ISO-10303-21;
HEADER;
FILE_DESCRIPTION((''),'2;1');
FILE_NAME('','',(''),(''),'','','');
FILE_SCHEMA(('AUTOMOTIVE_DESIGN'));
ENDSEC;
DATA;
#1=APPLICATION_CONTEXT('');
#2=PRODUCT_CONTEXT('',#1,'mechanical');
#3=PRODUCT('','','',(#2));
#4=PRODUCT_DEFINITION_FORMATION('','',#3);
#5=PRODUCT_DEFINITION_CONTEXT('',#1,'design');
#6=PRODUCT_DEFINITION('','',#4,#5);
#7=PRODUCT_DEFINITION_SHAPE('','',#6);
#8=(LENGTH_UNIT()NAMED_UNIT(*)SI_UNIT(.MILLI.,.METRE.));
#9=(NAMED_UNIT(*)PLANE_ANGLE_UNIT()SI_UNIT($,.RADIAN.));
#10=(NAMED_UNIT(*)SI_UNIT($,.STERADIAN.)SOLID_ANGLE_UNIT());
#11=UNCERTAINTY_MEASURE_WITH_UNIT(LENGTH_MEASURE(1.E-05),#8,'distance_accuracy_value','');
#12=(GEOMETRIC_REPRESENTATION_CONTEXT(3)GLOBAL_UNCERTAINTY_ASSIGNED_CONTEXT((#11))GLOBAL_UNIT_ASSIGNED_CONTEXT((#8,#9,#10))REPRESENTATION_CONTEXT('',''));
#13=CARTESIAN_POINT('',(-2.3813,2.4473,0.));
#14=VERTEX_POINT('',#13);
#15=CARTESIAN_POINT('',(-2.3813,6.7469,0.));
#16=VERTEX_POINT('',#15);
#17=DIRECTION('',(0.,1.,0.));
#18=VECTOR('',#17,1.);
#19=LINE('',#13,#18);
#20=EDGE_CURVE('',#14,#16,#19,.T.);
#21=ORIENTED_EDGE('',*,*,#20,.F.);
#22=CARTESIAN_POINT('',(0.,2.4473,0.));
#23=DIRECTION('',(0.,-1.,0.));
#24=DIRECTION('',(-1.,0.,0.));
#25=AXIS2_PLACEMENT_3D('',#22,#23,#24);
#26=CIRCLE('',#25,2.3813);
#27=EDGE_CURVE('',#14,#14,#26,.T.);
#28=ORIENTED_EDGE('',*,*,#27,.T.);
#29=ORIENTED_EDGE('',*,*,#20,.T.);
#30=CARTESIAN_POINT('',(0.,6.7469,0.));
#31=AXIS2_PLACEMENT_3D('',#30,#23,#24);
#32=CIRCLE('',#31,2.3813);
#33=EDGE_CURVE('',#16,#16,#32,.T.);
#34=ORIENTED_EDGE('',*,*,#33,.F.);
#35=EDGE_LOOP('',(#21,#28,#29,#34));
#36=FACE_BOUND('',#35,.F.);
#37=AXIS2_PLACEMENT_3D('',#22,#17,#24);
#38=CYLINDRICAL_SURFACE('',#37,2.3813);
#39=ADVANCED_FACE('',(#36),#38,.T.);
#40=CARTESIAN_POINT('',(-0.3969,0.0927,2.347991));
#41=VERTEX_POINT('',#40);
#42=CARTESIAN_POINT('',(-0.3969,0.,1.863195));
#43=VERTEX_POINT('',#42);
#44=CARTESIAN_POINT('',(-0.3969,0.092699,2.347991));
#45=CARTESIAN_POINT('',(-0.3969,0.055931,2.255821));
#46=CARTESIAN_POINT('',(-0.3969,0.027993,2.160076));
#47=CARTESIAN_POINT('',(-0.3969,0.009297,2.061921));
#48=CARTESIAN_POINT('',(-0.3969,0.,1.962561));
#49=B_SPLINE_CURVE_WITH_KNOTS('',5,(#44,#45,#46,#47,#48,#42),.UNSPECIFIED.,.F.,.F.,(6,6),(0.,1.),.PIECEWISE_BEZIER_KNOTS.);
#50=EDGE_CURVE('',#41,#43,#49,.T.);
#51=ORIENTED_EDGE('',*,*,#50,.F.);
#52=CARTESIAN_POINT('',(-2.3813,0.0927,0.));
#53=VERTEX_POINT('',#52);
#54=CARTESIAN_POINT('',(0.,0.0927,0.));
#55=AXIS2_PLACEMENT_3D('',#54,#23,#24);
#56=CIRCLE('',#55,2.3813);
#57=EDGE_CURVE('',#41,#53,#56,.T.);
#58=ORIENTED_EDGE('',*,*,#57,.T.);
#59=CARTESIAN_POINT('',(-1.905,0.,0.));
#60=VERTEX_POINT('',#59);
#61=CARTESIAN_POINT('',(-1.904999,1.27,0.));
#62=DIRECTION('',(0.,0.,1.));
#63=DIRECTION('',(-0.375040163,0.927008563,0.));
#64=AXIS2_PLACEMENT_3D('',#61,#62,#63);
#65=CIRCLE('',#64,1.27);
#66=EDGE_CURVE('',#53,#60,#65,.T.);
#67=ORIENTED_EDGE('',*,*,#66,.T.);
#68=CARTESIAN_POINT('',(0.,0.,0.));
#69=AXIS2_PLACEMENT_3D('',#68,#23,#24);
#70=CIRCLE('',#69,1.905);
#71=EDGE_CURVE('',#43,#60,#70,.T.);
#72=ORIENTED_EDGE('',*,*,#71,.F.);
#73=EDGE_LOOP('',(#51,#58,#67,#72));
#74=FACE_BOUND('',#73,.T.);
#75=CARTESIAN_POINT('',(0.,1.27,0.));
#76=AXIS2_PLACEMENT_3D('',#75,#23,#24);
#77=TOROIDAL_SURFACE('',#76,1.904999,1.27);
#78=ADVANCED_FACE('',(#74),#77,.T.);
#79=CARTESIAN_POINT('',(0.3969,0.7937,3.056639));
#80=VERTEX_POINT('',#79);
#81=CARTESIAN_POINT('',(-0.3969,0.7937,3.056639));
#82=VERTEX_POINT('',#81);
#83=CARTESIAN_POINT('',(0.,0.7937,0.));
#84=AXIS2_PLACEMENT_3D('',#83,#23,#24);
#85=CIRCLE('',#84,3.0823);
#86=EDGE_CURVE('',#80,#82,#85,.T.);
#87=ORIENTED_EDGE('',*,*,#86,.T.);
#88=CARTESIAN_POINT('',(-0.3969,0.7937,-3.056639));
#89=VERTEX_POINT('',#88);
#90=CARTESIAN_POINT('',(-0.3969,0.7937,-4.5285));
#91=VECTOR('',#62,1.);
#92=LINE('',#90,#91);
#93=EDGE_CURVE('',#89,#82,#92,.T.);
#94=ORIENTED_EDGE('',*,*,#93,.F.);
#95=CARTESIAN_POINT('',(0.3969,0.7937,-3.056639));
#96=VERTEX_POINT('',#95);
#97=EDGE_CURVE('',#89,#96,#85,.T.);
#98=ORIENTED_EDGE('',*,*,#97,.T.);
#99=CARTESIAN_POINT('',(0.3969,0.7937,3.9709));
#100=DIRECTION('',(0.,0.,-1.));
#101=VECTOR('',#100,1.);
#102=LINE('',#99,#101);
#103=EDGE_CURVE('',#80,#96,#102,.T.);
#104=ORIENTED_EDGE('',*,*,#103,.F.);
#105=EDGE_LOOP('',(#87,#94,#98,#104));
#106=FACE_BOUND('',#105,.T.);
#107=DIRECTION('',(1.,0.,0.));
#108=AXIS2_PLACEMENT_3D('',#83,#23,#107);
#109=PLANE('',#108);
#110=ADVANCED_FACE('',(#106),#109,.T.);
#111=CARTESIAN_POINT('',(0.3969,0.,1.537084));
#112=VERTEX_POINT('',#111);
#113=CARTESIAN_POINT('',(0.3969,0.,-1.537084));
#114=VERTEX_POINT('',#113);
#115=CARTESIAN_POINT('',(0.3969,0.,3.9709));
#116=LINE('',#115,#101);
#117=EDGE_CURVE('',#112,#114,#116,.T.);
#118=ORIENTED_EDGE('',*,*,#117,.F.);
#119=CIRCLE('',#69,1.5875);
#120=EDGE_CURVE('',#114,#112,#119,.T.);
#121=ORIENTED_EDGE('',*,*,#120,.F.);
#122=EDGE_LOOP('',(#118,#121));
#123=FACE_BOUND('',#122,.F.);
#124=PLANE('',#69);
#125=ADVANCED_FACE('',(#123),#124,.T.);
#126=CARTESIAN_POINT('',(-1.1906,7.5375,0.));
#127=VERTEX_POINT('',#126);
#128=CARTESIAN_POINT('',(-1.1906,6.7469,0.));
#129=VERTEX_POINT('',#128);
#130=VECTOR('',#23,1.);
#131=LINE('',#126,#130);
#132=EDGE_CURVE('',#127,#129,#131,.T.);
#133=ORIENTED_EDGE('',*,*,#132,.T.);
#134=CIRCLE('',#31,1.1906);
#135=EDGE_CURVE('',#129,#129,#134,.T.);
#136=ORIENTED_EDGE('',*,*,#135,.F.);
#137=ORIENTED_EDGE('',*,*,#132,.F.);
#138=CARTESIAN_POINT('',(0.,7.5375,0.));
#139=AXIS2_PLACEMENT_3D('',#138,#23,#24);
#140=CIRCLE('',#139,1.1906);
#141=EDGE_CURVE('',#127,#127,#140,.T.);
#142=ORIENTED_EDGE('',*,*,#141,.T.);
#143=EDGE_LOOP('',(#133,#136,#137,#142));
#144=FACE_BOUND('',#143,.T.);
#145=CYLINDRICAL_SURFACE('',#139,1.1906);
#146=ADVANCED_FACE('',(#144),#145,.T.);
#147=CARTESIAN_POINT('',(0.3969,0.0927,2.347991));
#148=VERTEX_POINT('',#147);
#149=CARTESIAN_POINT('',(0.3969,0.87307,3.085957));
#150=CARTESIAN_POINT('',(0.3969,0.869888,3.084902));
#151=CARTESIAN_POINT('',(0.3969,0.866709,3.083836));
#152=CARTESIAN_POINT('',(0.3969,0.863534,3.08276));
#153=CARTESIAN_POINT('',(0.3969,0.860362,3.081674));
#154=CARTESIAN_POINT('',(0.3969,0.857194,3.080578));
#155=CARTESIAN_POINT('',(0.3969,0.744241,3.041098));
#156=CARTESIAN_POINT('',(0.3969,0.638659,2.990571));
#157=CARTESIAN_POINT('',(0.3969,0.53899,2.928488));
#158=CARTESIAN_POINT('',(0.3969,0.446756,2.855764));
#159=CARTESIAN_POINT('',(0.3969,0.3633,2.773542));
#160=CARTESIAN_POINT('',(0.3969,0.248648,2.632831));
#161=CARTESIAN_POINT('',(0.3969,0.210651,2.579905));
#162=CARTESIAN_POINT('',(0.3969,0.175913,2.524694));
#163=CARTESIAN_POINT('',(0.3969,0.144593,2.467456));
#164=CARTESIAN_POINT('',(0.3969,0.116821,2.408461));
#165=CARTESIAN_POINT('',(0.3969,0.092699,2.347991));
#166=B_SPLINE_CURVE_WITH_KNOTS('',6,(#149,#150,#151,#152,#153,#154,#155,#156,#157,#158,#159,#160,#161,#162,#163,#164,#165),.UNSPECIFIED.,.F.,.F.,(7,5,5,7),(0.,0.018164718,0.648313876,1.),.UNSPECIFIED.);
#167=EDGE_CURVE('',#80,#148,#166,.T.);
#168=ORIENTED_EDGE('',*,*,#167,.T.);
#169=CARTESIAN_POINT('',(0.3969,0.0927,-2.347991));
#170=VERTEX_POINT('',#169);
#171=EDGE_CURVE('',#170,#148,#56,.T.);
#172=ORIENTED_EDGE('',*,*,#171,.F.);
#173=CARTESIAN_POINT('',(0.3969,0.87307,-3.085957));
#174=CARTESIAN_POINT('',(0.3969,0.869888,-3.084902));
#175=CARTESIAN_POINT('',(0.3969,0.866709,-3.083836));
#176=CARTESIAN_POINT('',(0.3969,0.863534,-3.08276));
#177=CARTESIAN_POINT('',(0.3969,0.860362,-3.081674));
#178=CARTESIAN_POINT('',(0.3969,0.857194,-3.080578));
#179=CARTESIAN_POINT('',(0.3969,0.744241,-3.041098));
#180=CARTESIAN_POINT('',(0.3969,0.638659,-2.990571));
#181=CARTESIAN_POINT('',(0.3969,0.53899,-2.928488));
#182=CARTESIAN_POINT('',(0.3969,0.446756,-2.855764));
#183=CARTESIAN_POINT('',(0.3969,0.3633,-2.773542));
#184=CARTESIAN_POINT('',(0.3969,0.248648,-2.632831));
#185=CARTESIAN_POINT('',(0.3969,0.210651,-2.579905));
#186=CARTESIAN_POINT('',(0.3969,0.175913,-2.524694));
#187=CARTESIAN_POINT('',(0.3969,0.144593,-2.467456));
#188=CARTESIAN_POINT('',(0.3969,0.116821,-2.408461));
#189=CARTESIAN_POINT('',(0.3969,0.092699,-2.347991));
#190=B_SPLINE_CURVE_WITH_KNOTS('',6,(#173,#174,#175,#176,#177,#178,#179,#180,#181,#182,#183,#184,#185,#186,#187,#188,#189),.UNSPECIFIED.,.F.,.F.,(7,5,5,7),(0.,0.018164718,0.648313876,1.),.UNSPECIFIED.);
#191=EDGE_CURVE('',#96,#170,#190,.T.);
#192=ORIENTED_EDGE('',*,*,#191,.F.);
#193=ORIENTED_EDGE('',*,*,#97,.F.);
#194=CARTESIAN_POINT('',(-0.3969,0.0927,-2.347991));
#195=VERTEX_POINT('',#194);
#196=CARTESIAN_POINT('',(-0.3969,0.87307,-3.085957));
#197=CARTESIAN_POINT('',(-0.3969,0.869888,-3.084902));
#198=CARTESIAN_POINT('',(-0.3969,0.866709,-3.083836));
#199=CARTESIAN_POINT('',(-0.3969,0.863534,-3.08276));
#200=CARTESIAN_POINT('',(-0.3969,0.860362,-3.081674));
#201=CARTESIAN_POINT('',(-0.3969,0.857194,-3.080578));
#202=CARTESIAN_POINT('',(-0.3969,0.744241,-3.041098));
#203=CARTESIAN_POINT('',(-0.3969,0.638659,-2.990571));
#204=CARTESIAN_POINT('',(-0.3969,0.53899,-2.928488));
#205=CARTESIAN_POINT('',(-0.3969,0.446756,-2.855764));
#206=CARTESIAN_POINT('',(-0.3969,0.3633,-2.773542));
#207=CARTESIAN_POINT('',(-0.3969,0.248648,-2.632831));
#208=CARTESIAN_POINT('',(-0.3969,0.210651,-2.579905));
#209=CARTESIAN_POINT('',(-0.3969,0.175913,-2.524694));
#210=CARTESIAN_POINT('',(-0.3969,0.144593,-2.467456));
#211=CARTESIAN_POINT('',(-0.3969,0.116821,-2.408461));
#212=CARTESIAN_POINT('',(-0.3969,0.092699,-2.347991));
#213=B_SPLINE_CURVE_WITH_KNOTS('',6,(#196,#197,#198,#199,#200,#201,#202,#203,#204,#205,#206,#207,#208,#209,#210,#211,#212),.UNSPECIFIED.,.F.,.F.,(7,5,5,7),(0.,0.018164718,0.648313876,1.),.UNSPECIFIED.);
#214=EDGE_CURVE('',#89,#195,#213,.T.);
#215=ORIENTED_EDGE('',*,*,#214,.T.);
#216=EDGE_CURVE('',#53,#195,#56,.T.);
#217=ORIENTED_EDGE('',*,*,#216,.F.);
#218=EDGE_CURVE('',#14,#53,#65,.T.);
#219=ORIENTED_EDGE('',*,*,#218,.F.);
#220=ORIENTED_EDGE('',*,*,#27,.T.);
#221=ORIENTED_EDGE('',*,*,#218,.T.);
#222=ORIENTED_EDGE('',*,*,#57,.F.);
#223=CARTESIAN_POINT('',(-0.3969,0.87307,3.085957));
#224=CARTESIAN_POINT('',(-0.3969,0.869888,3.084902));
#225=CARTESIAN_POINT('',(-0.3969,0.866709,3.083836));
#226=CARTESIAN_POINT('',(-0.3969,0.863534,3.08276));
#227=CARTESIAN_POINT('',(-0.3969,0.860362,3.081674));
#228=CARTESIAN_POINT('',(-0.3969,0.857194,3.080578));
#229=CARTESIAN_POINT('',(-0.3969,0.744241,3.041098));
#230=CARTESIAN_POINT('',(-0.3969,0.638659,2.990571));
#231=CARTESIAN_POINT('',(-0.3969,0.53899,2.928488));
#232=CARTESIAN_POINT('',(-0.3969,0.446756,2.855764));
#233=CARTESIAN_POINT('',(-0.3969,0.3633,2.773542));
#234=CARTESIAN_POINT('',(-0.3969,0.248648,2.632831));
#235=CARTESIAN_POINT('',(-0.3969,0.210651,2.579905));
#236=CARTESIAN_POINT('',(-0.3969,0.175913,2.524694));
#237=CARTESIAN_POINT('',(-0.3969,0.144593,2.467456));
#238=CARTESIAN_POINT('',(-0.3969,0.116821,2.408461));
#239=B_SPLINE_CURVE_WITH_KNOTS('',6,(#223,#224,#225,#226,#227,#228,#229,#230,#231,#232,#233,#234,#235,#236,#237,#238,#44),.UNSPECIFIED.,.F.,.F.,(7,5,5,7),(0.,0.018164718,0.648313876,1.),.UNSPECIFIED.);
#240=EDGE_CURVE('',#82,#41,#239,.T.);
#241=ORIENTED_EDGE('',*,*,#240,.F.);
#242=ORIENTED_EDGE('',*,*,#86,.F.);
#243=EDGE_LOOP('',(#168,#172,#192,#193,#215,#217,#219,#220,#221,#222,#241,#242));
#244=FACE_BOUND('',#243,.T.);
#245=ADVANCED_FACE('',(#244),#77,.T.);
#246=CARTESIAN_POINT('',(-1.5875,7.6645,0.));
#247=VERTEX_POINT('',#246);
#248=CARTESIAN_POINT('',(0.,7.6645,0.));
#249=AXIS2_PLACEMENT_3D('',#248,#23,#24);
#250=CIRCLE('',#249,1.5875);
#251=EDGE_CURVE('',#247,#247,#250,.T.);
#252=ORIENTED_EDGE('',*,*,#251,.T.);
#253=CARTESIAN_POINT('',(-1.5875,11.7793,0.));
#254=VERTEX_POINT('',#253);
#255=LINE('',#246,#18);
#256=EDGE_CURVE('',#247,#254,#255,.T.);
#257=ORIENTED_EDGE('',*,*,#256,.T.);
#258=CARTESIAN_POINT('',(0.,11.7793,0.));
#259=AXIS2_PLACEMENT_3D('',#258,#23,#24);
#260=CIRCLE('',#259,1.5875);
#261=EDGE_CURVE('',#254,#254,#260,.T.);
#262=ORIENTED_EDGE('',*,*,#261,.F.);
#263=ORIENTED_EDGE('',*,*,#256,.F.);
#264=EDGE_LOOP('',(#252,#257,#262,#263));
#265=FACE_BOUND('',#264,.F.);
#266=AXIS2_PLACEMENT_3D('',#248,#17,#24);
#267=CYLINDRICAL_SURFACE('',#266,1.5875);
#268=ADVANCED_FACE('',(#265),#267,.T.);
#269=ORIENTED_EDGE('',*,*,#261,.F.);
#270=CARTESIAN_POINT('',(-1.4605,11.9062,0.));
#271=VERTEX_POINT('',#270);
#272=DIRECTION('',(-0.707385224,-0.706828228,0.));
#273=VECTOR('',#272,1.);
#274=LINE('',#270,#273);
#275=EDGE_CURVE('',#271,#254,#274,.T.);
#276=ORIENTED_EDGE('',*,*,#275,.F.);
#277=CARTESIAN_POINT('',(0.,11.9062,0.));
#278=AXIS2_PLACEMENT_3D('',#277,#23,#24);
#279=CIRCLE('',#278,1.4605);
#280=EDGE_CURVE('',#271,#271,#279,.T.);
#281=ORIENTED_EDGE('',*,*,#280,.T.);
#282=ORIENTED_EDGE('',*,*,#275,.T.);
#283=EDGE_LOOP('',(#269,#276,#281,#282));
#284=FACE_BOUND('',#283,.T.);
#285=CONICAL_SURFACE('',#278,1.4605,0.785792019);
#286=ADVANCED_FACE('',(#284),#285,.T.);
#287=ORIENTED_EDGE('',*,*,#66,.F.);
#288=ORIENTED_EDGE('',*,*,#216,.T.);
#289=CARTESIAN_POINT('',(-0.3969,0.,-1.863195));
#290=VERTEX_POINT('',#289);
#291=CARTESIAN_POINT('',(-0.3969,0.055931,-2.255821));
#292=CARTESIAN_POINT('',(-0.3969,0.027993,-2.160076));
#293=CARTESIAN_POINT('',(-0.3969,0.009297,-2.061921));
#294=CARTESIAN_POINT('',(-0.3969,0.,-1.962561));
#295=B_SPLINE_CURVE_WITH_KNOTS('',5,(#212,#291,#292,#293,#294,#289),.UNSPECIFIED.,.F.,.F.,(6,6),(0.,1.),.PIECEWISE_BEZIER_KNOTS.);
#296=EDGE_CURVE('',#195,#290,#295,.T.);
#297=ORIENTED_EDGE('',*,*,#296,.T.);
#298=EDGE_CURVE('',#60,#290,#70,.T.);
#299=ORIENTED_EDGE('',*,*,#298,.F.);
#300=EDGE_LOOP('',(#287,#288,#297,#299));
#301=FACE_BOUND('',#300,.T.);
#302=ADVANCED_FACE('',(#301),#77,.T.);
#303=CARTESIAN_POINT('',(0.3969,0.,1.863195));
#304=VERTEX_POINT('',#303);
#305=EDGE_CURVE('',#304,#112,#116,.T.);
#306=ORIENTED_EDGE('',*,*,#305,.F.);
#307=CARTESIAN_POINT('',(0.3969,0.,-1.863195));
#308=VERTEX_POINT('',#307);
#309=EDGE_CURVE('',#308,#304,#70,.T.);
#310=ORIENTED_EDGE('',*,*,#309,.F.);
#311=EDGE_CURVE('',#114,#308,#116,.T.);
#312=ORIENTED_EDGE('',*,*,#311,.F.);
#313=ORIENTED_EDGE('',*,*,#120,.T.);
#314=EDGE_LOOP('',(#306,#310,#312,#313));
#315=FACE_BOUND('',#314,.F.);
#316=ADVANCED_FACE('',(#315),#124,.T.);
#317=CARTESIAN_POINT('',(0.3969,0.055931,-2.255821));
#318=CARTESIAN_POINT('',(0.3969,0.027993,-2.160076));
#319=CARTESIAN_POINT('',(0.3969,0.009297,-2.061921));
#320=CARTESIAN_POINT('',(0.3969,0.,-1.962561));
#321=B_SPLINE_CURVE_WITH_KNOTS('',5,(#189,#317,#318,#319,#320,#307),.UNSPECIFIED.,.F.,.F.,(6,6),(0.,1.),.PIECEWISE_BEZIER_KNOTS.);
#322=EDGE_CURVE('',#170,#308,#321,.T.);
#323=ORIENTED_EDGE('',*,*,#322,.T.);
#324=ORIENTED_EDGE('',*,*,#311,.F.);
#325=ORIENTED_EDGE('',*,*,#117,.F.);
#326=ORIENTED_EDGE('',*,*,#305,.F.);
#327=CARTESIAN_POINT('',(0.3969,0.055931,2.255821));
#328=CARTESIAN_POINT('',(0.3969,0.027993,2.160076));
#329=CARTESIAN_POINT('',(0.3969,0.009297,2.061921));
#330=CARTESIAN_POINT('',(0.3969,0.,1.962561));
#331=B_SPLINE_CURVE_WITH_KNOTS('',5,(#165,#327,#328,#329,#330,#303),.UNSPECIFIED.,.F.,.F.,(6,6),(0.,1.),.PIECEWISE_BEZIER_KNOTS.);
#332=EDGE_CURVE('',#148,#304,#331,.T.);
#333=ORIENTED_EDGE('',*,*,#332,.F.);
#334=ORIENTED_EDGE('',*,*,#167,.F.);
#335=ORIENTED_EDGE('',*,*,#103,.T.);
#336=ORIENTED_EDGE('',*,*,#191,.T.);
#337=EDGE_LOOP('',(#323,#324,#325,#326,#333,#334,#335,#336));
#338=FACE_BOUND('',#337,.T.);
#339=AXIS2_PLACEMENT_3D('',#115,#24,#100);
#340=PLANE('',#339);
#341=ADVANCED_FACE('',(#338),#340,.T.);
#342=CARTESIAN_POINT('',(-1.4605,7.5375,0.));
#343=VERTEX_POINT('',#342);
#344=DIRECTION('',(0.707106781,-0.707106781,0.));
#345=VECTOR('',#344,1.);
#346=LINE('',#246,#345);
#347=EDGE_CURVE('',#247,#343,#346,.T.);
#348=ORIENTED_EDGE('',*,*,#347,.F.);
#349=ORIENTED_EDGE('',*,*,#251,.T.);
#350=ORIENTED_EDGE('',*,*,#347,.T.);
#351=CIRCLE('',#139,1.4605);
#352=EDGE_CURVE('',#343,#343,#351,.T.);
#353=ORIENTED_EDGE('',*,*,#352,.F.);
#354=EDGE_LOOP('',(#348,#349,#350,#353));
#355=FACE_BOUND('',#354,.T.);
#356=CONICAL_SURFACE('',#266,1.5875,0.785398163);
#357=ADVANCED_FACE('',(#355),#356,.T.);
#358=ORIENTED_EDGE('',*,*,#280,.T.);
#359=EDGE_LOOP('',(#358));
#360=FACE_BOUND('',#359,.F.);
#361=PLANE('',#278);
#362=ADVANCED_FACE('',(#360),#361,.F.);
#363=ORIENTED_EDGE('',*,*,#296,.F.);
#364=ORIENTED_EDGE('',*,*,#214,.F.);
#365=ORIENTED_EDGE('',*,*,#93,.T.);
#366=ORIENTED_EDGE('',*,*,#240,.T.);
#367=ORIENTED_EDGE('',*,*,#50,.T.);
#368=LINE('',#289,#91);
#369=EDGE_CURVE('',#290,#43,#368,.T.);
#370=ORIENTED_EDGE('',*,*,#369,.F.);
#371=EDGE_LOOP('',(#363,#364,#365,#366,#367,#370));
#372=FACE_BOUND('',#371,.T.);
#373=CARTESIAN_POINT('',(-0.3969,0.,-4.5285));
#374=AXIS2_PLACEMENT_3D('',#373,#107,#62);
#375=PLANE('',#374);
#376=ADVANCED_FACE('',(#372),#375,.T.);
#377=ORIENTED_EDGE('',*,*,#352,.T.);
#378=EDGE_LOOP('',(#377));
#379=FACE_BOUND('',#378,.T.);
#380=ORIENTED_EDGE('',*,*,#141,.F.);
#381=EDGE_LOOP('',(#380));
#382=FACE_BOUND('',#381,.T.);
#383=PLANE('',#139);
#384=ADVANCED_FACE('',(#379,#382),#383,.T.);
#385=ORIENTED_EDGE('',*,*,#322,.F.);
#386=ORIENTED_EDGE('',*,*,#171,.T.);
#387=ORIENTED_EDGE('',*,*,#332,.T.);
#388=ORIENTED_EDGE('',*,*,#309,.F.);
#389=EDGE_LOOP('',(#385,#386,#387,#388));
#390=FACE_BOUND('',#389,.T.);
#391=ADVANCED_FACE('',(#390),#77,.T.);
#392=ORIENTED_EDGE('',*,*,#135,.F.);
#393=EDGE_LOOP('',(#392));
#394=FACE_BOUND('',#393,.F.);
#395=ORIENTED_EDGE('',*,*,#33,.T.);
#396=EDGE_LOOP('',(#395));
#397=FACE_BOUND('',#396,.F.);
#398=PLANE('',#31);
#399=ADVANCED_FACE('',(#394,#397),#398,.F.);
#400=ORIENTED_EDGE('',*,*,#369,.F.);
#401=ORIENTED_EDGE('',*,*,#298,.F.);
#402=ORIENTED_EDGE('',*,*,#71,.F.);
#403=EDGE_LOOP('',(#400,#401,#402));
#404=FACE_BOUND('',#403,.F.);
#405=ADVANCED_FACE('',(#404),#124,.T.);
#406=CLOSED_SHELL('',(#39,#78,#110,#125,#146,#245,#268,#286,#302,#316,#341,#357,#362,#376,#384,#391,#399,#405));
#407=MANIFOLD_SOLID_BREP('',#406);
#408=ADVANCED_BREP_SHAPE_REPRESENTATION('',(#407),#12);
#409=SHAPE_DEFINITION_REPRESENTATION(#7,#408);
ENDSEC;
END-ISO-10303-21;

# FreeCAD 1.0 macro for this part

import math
import FreeCAD as App
import Part
import Sketcher

V = App.Vector
Q = App.Units.Quantity

doc = App.newDocument("Part")
body = doc.addObject("PartDesign::Body", "Body")

# Sketch on XY plane
sketch1 = body.newObject("Sketcher::SketchObject", "Sketch")
sketch1.AttachmentSupport = (doc.getObject("XY_Plane"), [""])
sketch1.MapMode = "FlatFace"
sketch1.addGeometry([
    Part.LineSegment(V(-1.91, 0, 0), V(0, 0, 0)),  # 0
    Part.LineSegment(V(0, 0, 0), V(0, 11.91, 0)),  # 1
    Part.LineSegment(V(0, 11.91, 0), V(-1.46, 11.91, 0)),  # 2
    Part.LineSegment(V(-1.46, 11.91, 0), V(-1.59, 11.78, 0)),  # 3
    Part.LineSegment(V(-1.59, 11.78, 0), V(-1.59, 7.66, 0)),  # 4
    Part.LineSegment(V(-1.59, 7.66, 0), V(-1.46, 7.54, 0)),  # 5
    Part.LineSegment(V(-1.46, 7.54, 0), V(-1.19, 7.54, 0)),  # 6
    Part.LineSegment(V(-1.19, 7.54, 0), V(-1.19, 6.75, 0)),  # 7
    Part.LineSegment(V(-1.19, 6.75, 0), V(-2.38, 6.75, 0)),  # 8
    Part.LineSegment(V(-2.38, 6.75, 0), V(-2.38, 2.45, 0)),  # 9
    Part.ArcOfCircle(Part.Circle(V(-1.91, 1.27, 0), V(0, 0, 1), 1.27), math.radians(112), math.radians(270)),  # 10
], False)
sketch1.addConstraint([
    Sketcher.Constraint("Coincident", 0, 2, 1, 1),
    Sketcher.Constraint("Coincident", 1, 2, 2, 1),
    Sketcher.Constraint("Coincident", 2, 2, 3, 1),
    Sketcher.Constraint("Coincident", 3, 2, 4, 1),
    Sketcher.Constraint("Coincident", 4, 2, 5, 1),
    Sketcher.Constraint("Coincident", 5, 2, 6, 1),
    Sketcher.Constraint("Coincident", 6, 2, 7, 1),
    Sketcher.Constraint("Coincident", 7, 2, 8, 1),
    Sketcher.Constraint("Coincident", 8, 2, 9, 1),
    Sketcher.Constraint("Coincident", 9, 2, 10, 1),
    Sketcher.Constraint("Tangent", 10, 2, 0, 1),
    Sketcher.Constraint("Horizontal", 0),
    Sketcher.Constraint("Vertical", 1),
    Sketcher.Constraint("Horizontal", 2),
    Sketcher.Constraint("Vertical", 4),
    Sketcher.Constraint("Horizontal", 6),
    Sketcher.Constraint("Vertical", 7),
    Sketcher.Constraint("Horizontal", 8),
    Sketcher.Constraint("Vertical", 9),
    Sketcher.Constraint("Coincident", 0, 2, -1, 1),
    Sketcher.Constraint("Perpendicular", 3, 5),
    Sketcher.Constraint("Vertical", 2, 2, 5, 2),
    Sketcher.Constraint("Equal", 3, 5),
    Sketcher.Constraint("Radius", 10, Q("0.05 in")),
    Sketcher.Constraint("DistanceX", 0, 1, 0, 2, Q("0.075 in")),
    Sketcher.Constraint("DistanceY", 1, 1, 1, 2, Q("0.468748 in")),
    Sketcher.Constraint("DistanceX", 3, 2, -1, 1, Q("0.0625 in")),
    Sketcher.Constraint("DistanceY", -1, 1, 7, 2, Q("0.2656299 in")),
    Sketcher.Constraint("DistanceX", 8, 2, -1, 1, Q("0.093752 in")),
    Sketcher.Constraint("DistanceX", 3, 2, 2, 2, Q("0.005 in")),
    Sketcher.Constraint("DistanceY", 5, 2, 2, 2, Q("0.172 in")),
    Sketcher.Constraint("DistanceX", 8, 2, 8, 1, Q("0.046878 in")),
])
revolution = body.newObject("PartDesign::Revolution", "Revolution")
revolution.Profile = sketch1
revolution.ReferenceAxis = (sketch1, ["V_Axis"])
revolution.Angle = 360

# Sketch on XZ plane
sketch2 = body.newObject("Sketcher::SketchObject", "Sketch001")
sketch2.AttachmentSupport = (doc.getObject("XZ_Plane"), [""])
sketch2.MapMode = "FlatFace"
sketch2.addGeometry([
    Part.LineSegment(V(0.4, 4, 0), V(-0.4, 4, 0)),
    Part.LineSegment(V(-0.4, 4, 0), V(-0.4, -4.5, 0)),
    Part.LineSegment(V(-0.4, -4.5, 0), V(0.4, -4.5, 0)),
    Part.LineSegment(V(0.4, -4.5, 0), V(0.4, 4, 0)),
], False)
sketch2.addConstraint([
    Sketcher.Constraint("Coincident", 0, 2, 1, 1),
    Sketcher.Constraint("Coincident", 1, 2, 2, 1),
    Sketcher.Constraint("Coincident", 2, 2, 3, 1),
    Sketcher.Constraint("Coincident", 3, 2, 0, 1),
    Sketcher.Constraint("Horizontal", 0),
    Sketcher.Constraint("Vertical", 1),
    Sketcher.Constraint("Horizontal", 2),
    Sketcher.Constraint("Vertical", 3),
    Sketcher.Constraint("DistanceX", 0, 2, 0, 1, Q("0.031252 in")),
    Sketcher.Constraint("DistanceX", 0, 2, -1, 1, Q("0.0156299 in")),
    Sketcher.Constraint("DistanceY", 1, 2, 1, 1, Q("8.4994 mm")),
    Sketcher.Constraint("DistanceY", -1, 1, 0, 2, Q("3.971 mm")),
])
pocket1 = body.newObject("PartDesign::Pocket", "Pocket")
pocket1.Profile = sketch2
pocket1.Length = Q("0.031248 in")

doc.recompute()
